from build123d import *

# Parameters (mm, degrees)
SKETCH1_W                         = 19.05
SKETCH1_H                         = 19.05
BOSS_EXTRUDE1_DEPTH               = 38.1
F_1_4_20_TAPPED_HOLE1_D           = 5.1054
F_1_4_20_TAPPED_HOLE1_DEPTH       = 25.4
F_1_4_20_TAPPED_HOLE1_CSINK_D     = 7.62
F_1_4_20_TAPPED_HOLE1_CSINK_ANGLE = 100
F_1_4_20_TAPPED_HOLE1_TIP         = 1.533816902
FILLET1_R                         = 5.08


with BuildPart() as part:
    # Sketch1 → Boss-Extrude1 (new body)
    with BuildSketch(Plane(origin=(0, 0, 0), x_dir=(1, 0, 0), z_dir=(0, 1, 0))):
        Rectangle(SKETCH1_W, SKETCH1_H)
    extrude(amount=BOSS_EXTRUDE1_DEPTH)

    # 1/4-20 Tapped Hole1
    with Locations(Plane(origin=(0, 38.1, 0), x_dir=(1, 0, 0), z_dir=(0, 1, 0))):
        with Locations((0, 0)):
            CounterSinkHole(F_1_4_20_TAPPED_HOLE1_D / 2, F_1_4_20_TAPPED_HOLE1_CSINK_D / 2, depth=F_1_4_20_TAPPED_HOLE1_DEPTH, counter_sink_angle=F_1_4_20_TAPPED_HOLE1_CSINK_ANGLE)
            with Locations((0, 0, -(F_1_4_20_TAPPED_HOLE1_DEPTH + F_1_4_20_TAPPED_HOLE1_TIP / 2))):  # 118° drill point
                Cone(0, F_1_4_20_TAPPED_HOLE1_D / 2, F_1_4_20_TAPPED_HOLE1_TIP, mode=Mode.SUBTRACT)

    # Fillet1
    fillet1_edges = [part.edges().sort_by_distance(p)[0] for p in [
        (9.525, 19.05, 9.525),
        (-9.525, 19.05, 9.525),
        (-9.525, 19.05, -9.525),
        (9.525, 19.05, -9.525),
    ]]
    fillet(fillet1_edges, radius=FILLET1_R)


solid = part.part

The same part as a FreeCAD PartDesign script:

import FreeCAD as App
import Part
import Sketcher

V = App.Vector
Q = App.Units.Quantity


def edges_at(feature, points):
    """Names of the edges that pass closest to the given points."""
    edges = feature.Shape.Edges
    near = lambda p: min(range(len(edges)), key=lambda i: edges[i].distToShape(Part.Vertex(*p))[0])
    return sorted({f"Edge{near(p) + 1}" for p in points})


def add_polygon(sketch, points):
    """Adds a closed chain of lines whose ends are joined by coincident constraints."""
    first, n = sketch.GeometryCount, len(points)
    for a, b in zip(points, points[1:] + points[:1]):
        sketch.addGeometry(Part.LineSegment(App.Vector(*a, 0), App.Vector(*b, 0)), False)
    for i in range(n):
        sketch.addConstraint(Sketcher.Constraint("Coincident", first + i, 2, first + (i + 1) % n, 1))

doc = App.newDocument("Part")
params = doc.addObject("Spreadsheet::Sheet", "Params")
for row, (alias, value) in enumerate([
    ("sketch1_width", "0.75 in"),
    ("pad1_length", "1.5 in"),
    ("sketch2_diameter", "0.201 in"),
    ("hole_diameter", "0.201 in"),
    ("hole_depth", "1 in"),
    ("hole_csink_diameter", "0.3 in"),
    ("fillet_radius", "0.2 in"),
], start=1):
    params.set(f"A{row}", alias)
    params.set(f"B{row}", "=" + value)
    params.setAlias(f"B{row}", alias)

body = doc.addObject("PartDesign::Body", "Body")

# Sketch on XZ plane
sketch1 = doc.addObject("Sketcher::SketchObject", "Sketch")
body.addObject(sketch1)
sketch1.AttachmentSupport = (doc.XZ_Plane, [""])
sketch1.MapMode = "FlatFace"
add_polygon(sketch1, [(-9.525, -9.525), (-9.525, 9.525), (9.525, 9.525), (9.525, -9.525)])  # lines 0-3
sketch1.addConstraint([
    Sketcher.Constraint("Vertical", 0),
    Sketcher.Constraint("Horizontal", 1),
    Sketcher.Constraint("Vertical", 2),
    Sketcher.Constraint("Horizontal", 3),
    Sketcher.Constraint("Symmetric", 0, 2, 2, 2, -1, 1),
    Sketcher.Constraint("Equal", 3, 0),
    Sketcher.Constraint("DistanceX", 1, 1, 1, 2, Q("0.75 in")),
])
sketch1.setExpression("Constraints[10]", "Params.sketch1_width")
pad1 = doc.addObject("PartDesign::Pad", "Pad")
body.addObject(pad1)
pad1.Profile = sketch1
pad1.setExpression("Length", "Params.pad1_length")
pad1.Reversed = True

# Sketch on XZ plane
sketch2 = doc.addObject("Sketcher::SketchObject", "Sketch001")
body.addObject(sketch2)
sketch2.AttachmentSupport = (doc.XZ_Plane, [""])
sketch2.MapMode = "FlatFace"
sketch2.AttachmentOffset = App.Placement(V(0, 0, -1.5 * 25.4), App.Rotation())
sketch2.addGeometry(Part.Circle(V(0, 0, 0), V(0, 0, 1), 2.5527), False)
sketch2.addConstraint([
    Sketcher.Constraint("Coincident", 0, 3, -1, 1),
    Sketcher.Constraint("Diameter", 0, Q("0.201 in")),
])
sketch2.setExpression("Constraints[1]", "Params.sketch2_diameter")
doc.recompute()
hole = doc.addObject("PartDesign::Hole", "Hole")
body.addObject(hole)
hole.Profile = sketch2
hole.ThreadType = "None"
hole.setExpression("Diameter", "Params.hole_diameter")
hole.DepthType = "Dimension"
hole.setExpression("Depth", "Params.hole_depth")
hole.DrillPoint = "Angled"
hole.DrillPointAngle = 118
hole.HoleCutType = "Countersink"
hole.setExpression("HoleCutDiameter", "Params.hole_csink_diameter")
hole.HoleCutCountersinkAngle = 100
hole.Reversed = True
doc.recompute()

fillet = doc.addObject("PartDesign::Fillet", "Fillet")
body.addObject(fillet)
fillet.Base = (hole, edges_at(hole, [
    (9.525, 19.05, 9.525),
    (-9.525, 19.05, 9.525),
    (-9.525, 19.05, -9.525),
    (9.525, 19.05, -9.525),
]))
fillet.setExpression("Radius", "Params.fillet_radius")

doc.recompute()
